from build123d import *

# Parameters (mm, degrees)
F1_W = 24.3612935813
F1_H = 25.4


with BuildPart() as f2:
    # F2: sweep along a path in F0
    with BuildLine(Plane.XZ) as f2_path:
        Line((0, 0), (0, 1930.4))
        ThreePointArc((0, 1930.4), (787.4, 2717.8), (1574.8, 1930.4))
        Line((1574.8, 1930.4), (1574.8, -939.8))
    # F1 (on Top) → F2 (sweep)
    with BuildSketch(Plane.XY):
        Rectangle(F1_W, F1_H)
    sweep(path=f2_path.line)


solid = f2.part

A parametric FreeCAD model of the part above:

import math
import FreeCAD as App
import Part
import Sketcher
from FreeCAD import Vector
Q = App.Units.Quantity

doc = App.newDocument("Part")
body = doc.addObject("PartDesign::Body", "Body")

# Sketch on XY plane
sketch1 = doc.addObject("Sketcher::SketchObject", "Sketch")
body.addObject(sketch1)
sketch1.AttachmentSupport = (doc.XY_Plane, [""])
sketch1.MapMode = "FlatFace"
sketch1.addGeometry([
    Part.LineSegment(Vector(-12.180647, 12.7, 0), Vector(-12.180647, -12.7, 0)),
    Part.LineSegment(Vector(-12.180647, -12.7, 0), Vector(12.180647, -12.7, 0)),
    Part.LineSegment(Vector(12.180647, -12.7, 0), Vector(12.180647, 12.7, 0)),
    Part.LineSegment(Vector(12.180647, 12.7, 0), Vector(-12.180647, 12.7, 0)),
], False)
sketch1.addConstraint([
    Sketcher.Constraint("Coincident", 0, 2, 1, 1),
    Sketcher.Constraint("Coincident", 1, 2, 2, 1),
    Sketcher.Constraint("Coincident", 2, 2, 3, 1),
    Sketcher.Constraint("Coincident", 3, 2, 0, 1),
    Sketcher.Constraint("Vertical", 0),
    Sketcher.Constraint("Horizontal", 1),
    Sketcher.Constraint("Vertical", 2),
    Sketcher.Constraint("Horizontal", 3),
    Sketcher.Constraint("Symmetric", 0, 2, 2, 2, -1, 1),
    Sketcher.Constraint("DistanceY", 0, 2, 0, 1, Q("1 in")),
    Sketcher.Constraint("DistanceX", 1, 1, 1, 2, Q("24.361294 mm")),
])

# Sketch on XZ plane
sketch2 = doc.addObject("Sketcher::SketchObject", "Sketch001")
body.addObject(sketch2)
sketch2.AttachmentSupport = (doc.XZ_Plane, [""])
sketch2.MapMode = "FlatFace"
sketch2.addGeometry([
    Part.LineSegment(Vector(0, 0, 0), Vector(0, 1930.4, 0)),
    Part.ArcOfCircle(Part.Circle(Vector(787.4, 1930.4, 0), Vector(0, 0, 1), 787.4), math.radians(0), math.radians(180)),
    Part.LineSegment(Vector(1574.8, 1930.4, 0), Vector(1574.8, -939.8, 0)),
], False)
sketch2.addConstraint([
    Sketcher.Constraint("Coincident", 0, 2, 1, 2),
    Sketcher.Constraint("Coincident", 1, 1, 2, 1),
    Sketcher.Constraint("Vertical", 0),
    Sketcher.Constraint("Vertical", 2),
    Sketcher.Constraint("Coincident", 0, 1, -1, 1),
    Sketcher.Constraint("Horizontal", 1, 3, 0, 2),
    Sketcher.Constraint("Radius", 1, Q("31 in")),
    Sketcher.Constraint("DistanceY", 0, 1, 0, 2, Q("76 in")),
    Sketcher.Constraint("DistanceY", 2, 2, 2, 1, Q("113 in")),
    Sketcher.Constraint("DistanceY", 2, 2, -1, 1, Q("37 in")),
])
doc.recompute()

additivepipe = doc.addObject("PartDesign::AdditivePipe", "AdditivePipe")
body.addObject(additivepipe)
additivepipe.Profile = sketch1
additivepipe.Spine = (sketch2, ["Edge1", "Edge2", "Edge3"])

doc.recompute()
